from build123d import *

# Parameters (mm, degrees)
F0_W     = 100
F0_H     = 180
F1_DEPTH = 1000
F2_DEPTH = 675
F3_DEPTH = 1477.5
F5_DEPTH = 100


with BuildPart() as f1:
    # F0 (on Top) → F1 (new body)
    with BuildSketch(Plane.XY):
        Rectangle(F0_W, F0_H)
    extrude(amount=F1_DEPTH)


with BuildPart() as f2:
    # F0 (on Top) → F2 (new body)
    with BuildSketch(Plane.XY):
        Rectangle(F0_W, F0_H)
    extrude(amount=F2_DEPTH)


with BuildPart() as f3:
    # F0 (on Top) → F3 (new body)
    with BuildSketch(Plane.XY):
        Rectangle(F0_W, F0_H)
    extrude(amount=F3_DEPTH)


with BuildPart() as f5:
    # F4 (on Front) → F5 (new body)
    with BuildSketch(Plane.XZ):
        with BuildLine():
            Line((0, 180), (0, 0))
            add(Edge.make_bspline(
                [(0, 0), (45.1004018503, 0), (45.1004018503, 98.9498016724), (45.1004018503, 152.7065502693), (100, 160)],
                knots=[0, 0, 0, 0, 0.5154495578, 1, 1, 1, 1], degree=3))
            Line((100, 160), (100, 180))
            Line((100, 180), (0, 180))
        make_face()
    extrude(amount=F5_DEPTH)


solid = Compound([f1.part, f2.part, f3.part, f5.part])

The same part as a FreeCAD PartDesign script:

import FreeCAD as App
import Part
import Sketcher
Q = App.Units.Quantity


def add_polygon(sketch, points):
    """Adds a closed chain of lines whose ends are joined by coincident constraints."""
    first, n = sketch.GeometryCount, len(points)
    for a, b in zip(points, points[1:] + points[:1]):
        sketch.addGeometry(Part.LineSegment(App.Vector(*a, 0), App.Vector(*b, 0)), False)
    for i in range(n):
        sketch.addConstraint(Sketcher.Constraint("Coincident", first + i, 2, first + (i + 1) % n, 1))

doc = App.newDocument("Part")
body = doc.addObject("PartDesign::Body", "Body")

# Sketch on XY plane
sketch1 = doc.addObject("Sketcher::SketchObject", "Sketch")
body.addObject(sketch1)
sketch1.AttachmentSupport = (doc.XY_Plane, [""])
sketch1.MapMode = "FlatFace"
add_polygon(sketch1, [(-50, 90), (-50, -90), (50, -90), (50, 90)])  # lines 0-3
sketch1.addConstraint([
    Sketcher.Constraint("Vertical", 0),
    Sketcher.Constraint("Horizontal", 1),
    Sketcher.Constraint("Vertical", 2),
    Sketcher.Constraint("Horizontal", 3),
    Sketcher.Constraint("Symmetric", 0, 2, 2, 2, -1, 1),
    Sketcher.Constraint("DistanceX", 1, 1, 1, 2, Q("100 mm")),
    Sketcher.Constraint("DistanceY", 0, 2, 0, 1, Q("180 mm")),
])
pad1 = doc.addObject("PartDesign::Pad", "Pad")
body.addObject(pad1)
pad1.Profile = sketch1
pad1.Length = 1000
body2 = doc.addObject("PartDesign::Body", "Body001")

# Sketch on XY plane
sketch2 = doc.addObject("Sketcher::SketchObject", "Sketch001")
body2.addObject(sketch2)
sketch2.AttachmentSupport = (doc.getObject("XY_Plane001"), [""])
sketch2.MapMode = "FlatFace"
add_polygon(sketch2, [(-50, 90), (-50, -90), (50, -90), (50, 90)])  # lines 0-3
sketch2.addConstraint([
    Sketcher.Constraint("Vertical", 0),
    Sketcher.Constraint("Horizontal", 1),
    Sketcher.Constraint("Vertical", 2),
    Sketcher.Constraint("Horizontal", 3),
    Sketcher.Constraint("Symmetric", 0, 2, 2, 2, -1, 1),
    Sketcher.Constraint("DistanceX", 1, 1, 1, 2, Q("100 mm")),
    Sketcher.Constraint("DistanceY", 0, 2, 0, 1, Q("180 mm")),
])
pad2 = doc.addObject("PartDesign::Pad", "Pad001")
body2.addObject(pad2)
pad2.Profile = sketch2
pad2.Length = 675
body3 = doc.addObject("PartDesign::Body", "Body002")

# Sketch on XY plane
sketch3 = doc.addObject("Sketcher::SketchObject", "Sketch002")
body3.addObject(sketch3)
sketch3.AttachmentSupport = (doc.getObject("XY_Plane002"), [""])
sketch3.MapMode = "FlatFace"
add_polygon(sketch3, [(-50, 90), (-50, -90), (50, -90), (50, 90)])  # lines 0-3
sketch3.addConstraint([
    Sketcher.Constraint("Vertical", 0),
    Sketcher.Constraint("Horizontal", 1),
    Sketcher.Constraint("Vertical", 2),
    Sketcher.Constraint("Horizontal", 3),
    Sketcher.Constraint("Symmetric", 0, 2, 2, 2, -1, 1),
    Sketcher.Constraint("DistanceX", 1, 1, 1, 2, Q("100 mm")),
    Sketcher.Constraint("DistanceY", 0, 2, 0, 1, Q("180 mm")),
])
pad3 = doc.addObject("PartDesign::Pad", "Pad002")
body3.addObject(pad3)
pad3.Profile = sketch3
pad3.Length = 1477.5
body4 = doc.addObject("PartDesign::Body", "Body003")

# Sketch on XZ plane
sketch4 = doc.addObject("Sketcher::SketchObject", "Sketch003")
body4.addObject(sketch4)
sketch4.AttachmentSupport = (doc.getObject("XZ_Plane003"), [""])
sketch4.MapMode = "FlatFace"
sketch4.addGeometry([
    Part.LineSegment(App.Vector(0, 180, 0), App.Vector(0, 0, 0)),
    Part.BSplineCurve([App.Vector(0, 0, 0), App.Vector(45.100402, 0, 0), App.Vector(45.100402, 98.949802, 0), App.Vector(45.100402, 152.70655, 0), App.Vector(100, 160, 0)], [4, 1, 4], [0, 0.515449558, 1], False, 3, [1, 1, 1, 1, 1], False),
    Part.LineSegment(App.Vector(100, 160, 0), App.Vector(100, 180, 0)),
    Part.LineSegment(App.Vector(100, 180, 0), App.Vector(0, 180, 0)),
], False)
sketch4.addConstraint([
    Sketcher.Constraint("Block", 1),
    Sketcher.Constraint("Coincident", 0, 2, 1, 1),
    Sketcher.Constraint("Coincident", 1, 2, 2, 1),
    Sketcher.Constraint("Coincident", 2, 2, 3, 1),
    Sketcher.Constraint("Coincident", 3, 2, 0, 1),
    Sketcher.Constraint("Vertical", 0),
    Sketcher.Constraint("Vertical", 2),
    Sketcher.Constraint("Horizontal", 3),
    Sketcher.Constraint("DistanceY", 0, 2, 0, 1, Q("180 mm")),
])
pad4 = doc.addObject("PartDesign::Pad", "Pad003")
body4.addObject(pad4)
pad4.Profile = sketch4
pad4.Length = 100

doc.recompute()
